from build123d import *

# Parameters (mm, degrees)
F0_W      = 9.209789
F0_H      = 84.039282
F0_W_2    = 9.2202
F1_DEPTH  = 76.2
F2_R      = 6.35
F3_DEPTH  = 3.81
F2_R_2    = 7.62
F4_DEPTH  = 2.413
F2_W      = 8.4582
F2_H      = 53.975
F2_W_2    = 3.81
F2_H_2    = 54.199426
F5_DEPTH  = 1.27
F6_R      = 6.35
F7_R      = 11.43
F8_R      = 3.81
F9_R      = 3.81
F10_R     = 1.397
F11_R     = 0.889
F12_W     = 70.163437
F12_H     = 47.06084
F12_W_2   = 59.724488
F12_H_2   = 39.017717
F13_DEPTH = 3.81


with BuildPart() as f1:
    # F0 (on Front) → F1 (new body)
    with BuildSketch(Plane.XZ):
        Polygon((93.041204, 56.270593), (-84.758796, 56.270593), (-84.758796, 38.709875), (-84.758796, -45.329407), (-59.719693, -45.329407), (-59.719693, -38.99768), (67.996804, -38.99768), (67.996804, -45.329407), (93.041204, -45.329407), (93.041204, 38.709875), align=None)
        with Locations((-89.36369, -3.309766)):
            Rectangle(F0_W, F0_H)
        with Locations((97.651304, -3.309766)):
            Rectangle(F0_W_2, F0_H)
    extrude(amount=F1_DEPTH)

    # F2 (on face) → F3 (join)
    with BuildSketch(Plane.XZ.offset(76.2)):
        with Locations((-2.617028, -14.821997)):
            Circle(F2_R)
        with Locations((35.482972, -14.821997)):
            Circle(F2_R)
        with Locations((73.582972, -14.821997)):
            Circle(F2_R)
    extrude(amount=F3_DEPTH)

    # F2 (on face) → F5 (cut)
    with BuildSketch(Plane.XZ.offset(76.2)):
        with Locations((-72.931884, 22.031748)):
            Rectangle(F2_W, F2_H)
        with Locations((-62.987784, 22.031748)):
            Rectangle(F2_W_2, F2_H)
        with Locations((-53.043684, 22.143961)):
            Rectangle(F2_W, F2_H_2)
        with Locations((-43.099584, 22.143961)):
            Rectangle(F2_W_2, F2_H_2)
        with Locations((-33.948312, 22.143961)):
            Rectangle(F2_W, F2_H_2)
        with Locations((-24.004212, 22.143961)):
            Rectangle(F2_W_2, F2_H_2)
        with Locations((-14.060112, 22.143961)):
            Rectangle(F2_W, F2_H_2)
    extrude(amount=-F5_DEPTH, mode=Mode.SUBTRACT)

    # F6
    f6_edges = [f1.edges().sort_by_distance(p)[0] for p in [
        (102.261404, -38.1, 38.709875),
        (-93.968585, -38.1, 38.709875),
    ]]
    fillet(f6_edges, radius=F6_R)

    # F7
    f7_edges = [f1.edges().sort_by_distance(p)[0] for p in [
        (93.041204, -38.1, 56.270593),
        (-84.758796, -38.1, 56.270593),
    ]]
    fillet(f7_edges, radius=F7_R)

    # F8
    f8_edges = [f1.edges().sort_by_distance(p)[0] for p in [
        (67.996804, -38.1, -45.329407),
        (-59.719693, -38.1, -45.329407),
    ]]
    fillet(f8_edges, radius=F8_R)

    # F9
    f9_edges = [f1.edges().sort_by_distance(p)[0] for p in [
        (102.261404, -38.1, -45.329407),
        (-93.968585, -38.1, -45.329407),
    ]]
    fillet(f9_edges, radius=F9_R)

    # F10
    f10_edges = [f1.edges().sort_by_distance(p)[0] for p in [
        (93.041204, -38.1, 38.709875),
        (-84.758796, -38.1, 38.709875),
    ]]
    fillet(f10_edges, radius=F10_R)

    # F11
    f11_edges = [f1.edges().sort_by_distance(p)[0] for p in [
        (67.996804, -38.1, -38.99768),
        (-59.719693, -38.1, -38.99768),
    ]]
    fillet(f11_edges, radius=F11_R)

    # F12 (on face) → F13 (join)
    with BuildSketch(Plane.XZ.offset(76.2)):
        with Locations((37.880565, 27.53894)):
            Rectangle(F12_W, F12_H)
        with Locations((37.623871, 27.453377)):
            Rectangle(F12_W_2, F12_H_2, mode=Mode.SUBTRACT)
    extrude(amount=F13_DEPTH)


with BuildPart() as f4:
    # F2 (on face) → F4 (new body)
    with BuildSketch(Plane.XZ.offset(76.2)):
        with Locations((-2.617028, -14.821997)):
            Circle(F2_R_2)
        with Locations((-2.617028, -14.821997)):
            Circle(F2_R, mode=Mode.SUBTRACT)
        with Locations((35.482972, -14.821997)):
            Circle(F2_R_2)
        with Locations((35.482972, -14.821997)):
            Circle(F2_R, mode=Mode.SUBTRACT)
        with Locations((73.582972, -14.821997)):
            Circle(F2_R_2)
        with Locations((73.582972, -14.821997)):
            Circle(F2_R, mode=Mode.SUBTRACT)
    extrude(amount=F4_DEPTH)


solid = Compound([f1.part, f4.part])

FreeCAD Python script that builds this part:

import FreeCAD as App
import Part
import Sketcher
from FreeCAD import Vector
Q = App.Units.Quantity


def edges_at(feature, points):
    """Names of the edges that pass closest to the given points."""
    edges = feature.Shape.Edges
    near = lambda p: min(range(len(edges)), key=lambda i: edges[i].distToShape(Part.Vertex(*p))[0])
    return sorted({f"Edge{near(p) + 1}" for p in points})


def add_polygon(sketch, points):
    """Adds a closed chain of lines whose ends are joined by coincident constraints."""
    first, n = sketch.GeometryCount, len(points)
    for a, b in zip(points, points[1:] + points[:1]):
        sketch.addGeometry(Part.LineSegment(App.Vector(*a, 0), App.Vector(*b, 0)), False)
    for i in range(n):
        sketch.addConstraint(Sketcher.Constraint("Coincident", first + i, 2, first + (i + 1) % n, 1))

doc = App.newDocument("Part")
body = doc.addObject("PartDesign::Body", "Body")

# Sketch on XZ plane
sketch1 = body.newObject("Sketcher::SketchObject", "Sketch")
sketch1.AttachmentSupport = (doc.getObject("XZ_Plane"), [""])
sketch1.MapMode = "FlatFace"
add_polygon(sketch1, [(93, 39), (93, 56), (-85, 56), (-85, 39), (-94, 39), (-94, -45), (-60, -45), (-60, -39), (68, -39), (68, -45), (102, -45), (102, 39)])  # lines 0-11
sketch1.addConstraint([
    Sketcher.Constraint("Vertical", 0),
    Sketcher.Constraint("Horizontal", 1),
    Sketcher.Constraint("Vertical", 2),
    Sketcher.Constraint("Horizontal", 3),
    Sketcher.Constraint("Vertical", 4),
    Sketcher.Constraint("Horizontal", 5),
    Sketcher.Constraint("Vertical", 6),
    Sketcher.Constraint("Horizontal", 7),
    Sketcher.Constraint("Vertical", 8),
    Sketcher.Constraint("Horizontal", 9),
    Sketcher.Constraint("Vertical", 10),
    Sketcher.Constraint("Horizontal", 11),
    Sketcher.Constraint("Horizontal", 5, 2, 8, 2),
    Sketcher.Constraint("Horizontal", 3, 2, 10, 2),
    Sketcher.Constraint("DistanceX", 1, 2, 1, 1, Q("7 in")),
    Sketcher.Constraint("DistanceY", 4, 2, 1, 2, Q("4 in")),
    Sketcher.Constraint("DistanceX", 9, 1, 9, 2, Q("1.349 in")),
    Sketcher.Constraint("DistanceX", 11, 2, 11, 1, Q("0.363 in")),
    Sketcher.Constraint("DistanceX", 3, 2, 3, 1, 9.209789),
    Sketcher.Constraint("DistanceX", 5, 1, 5, 2, 34.248892),
    Sketcher.Constraint("DistanceY", 0, 1, 0, 2, 17.560718),
    Sketcher.Constraint("DistanceY", 6, 1, 6, 2, 6.331727),
    Sketcher.Constraint("DistanceY", 6, 2, -1, 1, 38.99768),
    Sketcher.Constraint("DistanceX", -1, 1, 0, 2, 93.041204),
])
pad1 = body.newObject("PartDesign::Pad", "Pad")
pad1.Profile = sketch1
pad1.Length = Q("3 in")

# Sketch on XZ plane
sketch2 = body.newObject("Sketcher::SketchObject", "Sketch001")
sketch2.AttachmentSupport = (doc.getObject("XZ_Plane"), [""])
sketch2.MapMode = "FlatFace"
sketch2.AttachmentOffset = App.Placement(Vector(0, 0, 3 * 25.4), App.Rotation())
sketch2.addGeometry([
    Part.Circle(Vector(-3, -15, 0), Vector(0, 0, 1), 6),
    Part.Circle(Vector(35, -15, 0), Vector(0, 0, 1), 6),
    Part.Circle(Vector(74, -15, 0), Vector(0, 0, 1), 6),
], False)
sketch2.addConstraint([
    Sketcher.Constraint("Equal", 0, 1),
    Sketcher.Constraint("Equal", 1, 2),
    Sketcher.Constraint("Horizontal", 0, 3, 1, 3),
    Sketcher.Constraint("Horizontal", 1, 3, 2, 3),
    Sketcher.Constraint("Diameter", 0, Q("0.5 in")),
    Sketcher.Constraint("DistanceX", 0, 3, 2, 3, Q("3 in")),
    Sketcher.Constraint("DistanceX", 0, 3, 1, 3, Q("1.5 in")),
    Sketcher.Constraint("DistanceX", -1, 1, 1, 3, 35.482972),
    Sketcher.Constraint("DistanceY", 0, 3, -1, 1, 14.821997),
])
pad2 = body.newObject("PartDesign::Pad", "Pad001")
pad2.Profile = sketch2
pad2.Length = Q("0.15 in")

# Sketch on XZ plane
sketch3 = body.newObject("Sketcher::SketchObject", "Sketch002")
sketch3.AttachmentSupport = (doc.getObject("XZ_Plane"), [""])
sketch3.MapMode = "FlatFace"
sketch3.AttachmentOffset = App.Placement(Vector(0, 0, 3 * 25.4), App.Rotation())
add_polygon(sketch3, [(-77.2, 49), (-77.2, -5), (-68.7, -5), (-68.7, 49)])  # lines 0-3
add_polygon(sketch3, [(-64.9, 49), (-64.9, -5), (-61.1, -5), (-61.1, 49)])  # lines 4-7
add_polygon(sketch3, [(-57.3, 49.2), (-57.3, -5), (-48.8, -5), (-48.8, 49.2)])  # lines 8-11
add_polygon(sketch3, [(-45, 49.2), (-45, -5), (-41.2, -5), (-41.2, 49.2)])  # lines 12-15
add_polygon(sketch3, [(-38.2, 49.2), (-38.2, -5), (-29.7, -5), (-29.7, 49.2)])  # lines 16-19
add_polygon(sketch3, [(-25.9, 49.2), (-25.9, -5), (-22.1, -5), (-22.1, 49.2)])  # lines 20-23
add_polygon(sketch3, [(-18.3, 49.2), (-18.3, -5), (-9.8, -5), (-9.8, 49.2)])  # lines 24-27
sketch3.addConstraint([
    Sketcher.Constraint("Vertical", 0),
    Sketcher.Constraint("Horizontal", 1),
    Sketcher.Constraint("Vertical", 2),
    Sketcher.Constraint("Horizontal", 3),
    Sketcher.Constraint("Vertical", 4),
    Sketcher.Constraint("Horizontal", 5),
    Sketcher.Constraint("Vertical", 6),
    Sketcher.Constraint("Horizontal", 7),
    Sketcher.Constraint("Vertical", 8),
    Sketcher.Constraint("Horizontal", 9),
    Sketcher.Constraint("Vertical", 10),
    Sketcher.Constraint("Horizontal", 11),
    Sketcher.Constraint("Vertical", 12),
    Sketcher.Constraint("Horizontal", 13),
    Sketcher.Constraint("Vertical", 14),
    Sketcher.Constraint("Horizontal", 15),
    Sketcher.Constraint("Vertical", 16),
    Sketcher.Constraint("Horizontal", 17),
    Sketcher.Constraint("Vertical", 18),
    Sketcher.Constraint("Horizontal", 19),
    Sketcher.Constraint("Vertical", 20),
    Sketcher.Constraint("Horizontal", 21),
    Sketcher.Constraint("Vertical", 22),
    Sketcher.Constraint("Horizontal", 23),
    Sketcher.Constraint("Vertical", 24),
    Sketcher.Constraint("Horizontal", 25),
    Sketcher.Constraint("Vertical", 26),
    Sketcher.Constraint("Horizontal", 27),
    Sketcher.Constraint("Horizontal", 1, 2, 4, 2),
    Sketcher.Constraint("Horizontal", 3, 2, 6, 2),
    Sketcher.Constraint("Horizontal", 5, 2, 8, 2),
    Sketcher.Constraint("Horizontal", 9, 2, 12, 2),
    Sketcher.Constraint("Horizontal", 11, 2, 14, 2),
    Sketcher.Constraint("Horizontal", 13, 2, 16, 2),
    Sketcher.Constraint("Horizontal", 15, 2, 18, 2),
    Sketcher.Constraint("Horizontal", 17, 2, 20, 2),
    Sketcher.Constraint("Horizontal", 19, 2, 22, 2),
    Sketcher.Constraint("Horizontal", 21, 2, 24, 2),
    Sketcher.Constraint("Horizontal", 23, 2, 26, 2),
    Sketcher.Constraint("Equal", 3, 9),
    Sketcher.Constraint("Equal", 7, 13),
    Sketcher.Constraint("Equal", 11, 17),
    Sketcher.Constraint("Equal", 15, 21),
    Sketcher.Constraint("Equal", 19, 25),
    Sketcher.Constraint("DistanceX", 5, 1, 5, 2, Q("0.15 in")),
    Sketcher.Constraint("DistanceX", 1, 2, 5, 2, Q("0.3 in")),
    Sketcher.Constraint("DistanceX", 4, 2, 8, 2, Q("0.3 in")),
    Sketcher.Constraint("DistanceX", 9, 2, 13, 2, Q("0.3 in")),
    Sketcher.Constraint("DistanceX", 17, 2, 21, 2, Q("0.3 in")),
    Sketcher.Constraint("DistanceX", 20, 2, 24, 2, Q("0.3 in")),
    Sketcher.Constraint("DistanceX", 1, 1, 1, 2, Q("0.333 in")),
    Sketcher.Constraint("DistanceY", 0, 2, 0, 1, Q("2.125 in")),
    Sketcher.Constraint("DistanceY", 8, 2, 8, 1, 54.199426),
    Sketcher.Constraint("DistanceX", 16, 2, -1, 1, 38.177412),
    Sketcher.Constraint("DistanceX", 5, 2, 16, 2, 22.905372),
    Sketcher.Constraint("DistanceY", 0, 2, -1, 1, 4.955752),
])
pocket1 = body.newObject("PartDesign::Pocket", "Pocket")
pocket1.Profile = sketch3
pocket1.Length = Q("0.05 in")
doc.recompute()

fillet = body.newObject("PartDesign::Fillet", "Fillet")
fillet.Base = (pocket1, edges_at(pocket1, [(102.261, -38.1, 38.71), (-93.969, -38.1, 38.71)]))
fillet.Radius = Q("0.25 in")
doc.recompute()

fillet2 = body.newObject("PartDesign::Fillet", "Fillet001")
fillet2.Base = (fillet, edges_at(fillet, [(93.041, -38.1, 56.271), (-84.759, -38.1, 56.271)]))
fillet2.Radius = Q("0.45 in")
doc.recompute()

fillet3 = body.newObject("PartDesign::Fillet", "Fillet002")
fillet3.Base = (fillet2, edges_at(fillet2, [(67.997, -38.1, -45.329), (-59.72, -38.1, -45.329)]))
fillet3.Radius = Q("0.15 in")
doc.recompute()

fillet4 = body.newObject("PartDesign::Fillet", "Fillet003")
fillet4.Base = (fillet3, edges_at(fillet3, [(102.261, -38.1, -45.329), (-93.969, -38.1, -45.329)]))
fillet4.Radius = Q("0.15 in")
doc.recompute()

fillet5 = body.newObject("PartDesign::Fillet", "Fillet004")
fillet5.Base = (fillet4, edges_at(fillet4, [(93.041, -38.1, 38.71), (-84.759, -38.1, 38.71)]))
fillet5.Radius = Q("0.055 in")
doc.recompute()

fillet6 = body.newObject("PartDesign::Fillet", "Fillet005")
fillet6.Base = (fillet5, edges_at(fillet5, [(67.997, -38.1, -38.998), (-59.72, -38.1, -38.998)]))
fillet6.Radius = Q("0.035 in")

# Sketch on XZ plane
sketch4 = body.newObject("Sketcher::SketchObject", "Sketch003")
sketch4.AttachmentSupport = (doc.getObject("XZ_Plane"), [""])
sketch4.MapMode = "FlatFace"
sketch4.AttachmentOffset = App.Placement(Vector(0, 0, 3 * 25.4), App.Rotation())
add_polygon(sketch4, [(3, 51), (3, 4), (73, 4), (73, 51)])  # lines 0-3
add_polygon(sketch4, [(67, 8), (8, 8), (8, 47), (67, 47)])  # lines 4-7
sketch4.addConstraint([
    Sketcher.Constraint("Vertical", 0),
    Sketcher.Constraint("Horizontal", 1),
    Sketcher.Constraint("Vertical", 2),
    Sketcher.Constraint("Horizontal", 3),
    Sketcher.Constraint("Horizontal", 4),
    Sketcher.Constraint("Vertical", 5),
    Sketcher.Constraint("Horizontal", 6),
    Sketcher.Constraint("Vertical", 7),
    Sketcher.Constraint("DistanceY", 0, 2, 0, 1, 47.06084),
    Sketcher.Constraint("DistanceY", 0, 2, 4, 2, 3.935999),
    Sketcher.Constraint("DistanceX", 1, 1, 1, 2, 70.163437),
    Sketcher.Constraint("DistanceX", 4, 2, 4, 1, 59.724488),
    Sketcher.Constraint("DistanceY", 5, 1, 5, 2, 39.017717),
    Sketcher.Constraint("DistanceY", -1, 1, 0, 2, 4.00852),
    Sketcher.Constraint("DistanceX", 0, 2, 4, 2, 4.962781),
    Sketcher.Constraint("DistanceX", -1, 1, 0, 2, 2.798846),
])
pad3 = body.newObject("PartDesign::Pad", "Pad002")
pad3.Profile = sketch4
pad3.Length = Q("0.15 in")
body2 = doc.addObject("PartDesign::Body", "Body001")
body2.AllowCompound = True

# Sketch on XZ plane
sketch5 = body2.newObject("Sketcher::SketchObject", "Sketch004")
sketch5.AttachmentSupport = (doc.getObject("XZ_Plane001"), [""])
sketch5.MapMode = "FlatFace"
sketch5.AttachmentOffset = App.Placement(Vector(0, 0, 3 * 25.4), App.Rotation())
sketch5.addGeometry([
    Part.Circle(Vector(-3, -15, 0), Vector(0, 0, 1), 8),  # 0
    Part.Circle(Vector(-3, -15, 0), Vector(0, 0, 1), 6),  # 1
    Part.Circle(Vector(35, -15, 0), Vector(0, 0, 1), 8),  # 2
    Part.Circle(Vector(35, -15, 0), Vector(0, 0, 1), 6),  # 3
    Part.Circle(Vector(74, -15, 0), Vector(0, 0, 1), 8),  # 4
    Part.Circle(Vector(74, -15, 0), Vector(0, 0, 1), 6),  # 5
], False)
sketch5.addConstraint([
    Sketcher.Constraint("Coincident", 1, 3, 0, 3),
    Sketcher.Constraint("Coincident", 3, 3, 2, 3),
    Sketcher.Constraint("Coincident", 5, 3, 4, 3),
    Sketcher.Constraint("Equal", 0, 2),
    Sketcher.Constraint("Equal", 1, 3),
    Sketcher.Constraint("Equal", 2, 4),
    Sketcher.Constraint("Equal", 3, 5),
    Sketcher.Constraint("Horizontal", 1, 3, 2, 3),
    Sketcher.Constraint("Horizontal", 3, 3, 4, 3),
    Sketcher.Constraint("Diameter", 0, Q("0.6 in")),
    Sketcher.Constraint("Diameter", 1, Q("0.5 in")),
    Sketcher.Constraint("DistanceX", 0, 3, 4, 3, Q("3 in")),
    Sketcher.Constraint("DistanceX", 0, 3, 2, 3, Q("1.5 in")),
    Sketcher.Constraint("DistanceX", -1, 1, 2, 3, 35.482972),
    Sketcher.Constraint("DistanceY", 0, 3, -1, 1, 14.821997),
])
pad4 = body2.newObject("PartDesign::Pad", "Pad003")
pad4.Profile = sketch5
pad4.Length = Q("0.095 in")

doc.recompute()
